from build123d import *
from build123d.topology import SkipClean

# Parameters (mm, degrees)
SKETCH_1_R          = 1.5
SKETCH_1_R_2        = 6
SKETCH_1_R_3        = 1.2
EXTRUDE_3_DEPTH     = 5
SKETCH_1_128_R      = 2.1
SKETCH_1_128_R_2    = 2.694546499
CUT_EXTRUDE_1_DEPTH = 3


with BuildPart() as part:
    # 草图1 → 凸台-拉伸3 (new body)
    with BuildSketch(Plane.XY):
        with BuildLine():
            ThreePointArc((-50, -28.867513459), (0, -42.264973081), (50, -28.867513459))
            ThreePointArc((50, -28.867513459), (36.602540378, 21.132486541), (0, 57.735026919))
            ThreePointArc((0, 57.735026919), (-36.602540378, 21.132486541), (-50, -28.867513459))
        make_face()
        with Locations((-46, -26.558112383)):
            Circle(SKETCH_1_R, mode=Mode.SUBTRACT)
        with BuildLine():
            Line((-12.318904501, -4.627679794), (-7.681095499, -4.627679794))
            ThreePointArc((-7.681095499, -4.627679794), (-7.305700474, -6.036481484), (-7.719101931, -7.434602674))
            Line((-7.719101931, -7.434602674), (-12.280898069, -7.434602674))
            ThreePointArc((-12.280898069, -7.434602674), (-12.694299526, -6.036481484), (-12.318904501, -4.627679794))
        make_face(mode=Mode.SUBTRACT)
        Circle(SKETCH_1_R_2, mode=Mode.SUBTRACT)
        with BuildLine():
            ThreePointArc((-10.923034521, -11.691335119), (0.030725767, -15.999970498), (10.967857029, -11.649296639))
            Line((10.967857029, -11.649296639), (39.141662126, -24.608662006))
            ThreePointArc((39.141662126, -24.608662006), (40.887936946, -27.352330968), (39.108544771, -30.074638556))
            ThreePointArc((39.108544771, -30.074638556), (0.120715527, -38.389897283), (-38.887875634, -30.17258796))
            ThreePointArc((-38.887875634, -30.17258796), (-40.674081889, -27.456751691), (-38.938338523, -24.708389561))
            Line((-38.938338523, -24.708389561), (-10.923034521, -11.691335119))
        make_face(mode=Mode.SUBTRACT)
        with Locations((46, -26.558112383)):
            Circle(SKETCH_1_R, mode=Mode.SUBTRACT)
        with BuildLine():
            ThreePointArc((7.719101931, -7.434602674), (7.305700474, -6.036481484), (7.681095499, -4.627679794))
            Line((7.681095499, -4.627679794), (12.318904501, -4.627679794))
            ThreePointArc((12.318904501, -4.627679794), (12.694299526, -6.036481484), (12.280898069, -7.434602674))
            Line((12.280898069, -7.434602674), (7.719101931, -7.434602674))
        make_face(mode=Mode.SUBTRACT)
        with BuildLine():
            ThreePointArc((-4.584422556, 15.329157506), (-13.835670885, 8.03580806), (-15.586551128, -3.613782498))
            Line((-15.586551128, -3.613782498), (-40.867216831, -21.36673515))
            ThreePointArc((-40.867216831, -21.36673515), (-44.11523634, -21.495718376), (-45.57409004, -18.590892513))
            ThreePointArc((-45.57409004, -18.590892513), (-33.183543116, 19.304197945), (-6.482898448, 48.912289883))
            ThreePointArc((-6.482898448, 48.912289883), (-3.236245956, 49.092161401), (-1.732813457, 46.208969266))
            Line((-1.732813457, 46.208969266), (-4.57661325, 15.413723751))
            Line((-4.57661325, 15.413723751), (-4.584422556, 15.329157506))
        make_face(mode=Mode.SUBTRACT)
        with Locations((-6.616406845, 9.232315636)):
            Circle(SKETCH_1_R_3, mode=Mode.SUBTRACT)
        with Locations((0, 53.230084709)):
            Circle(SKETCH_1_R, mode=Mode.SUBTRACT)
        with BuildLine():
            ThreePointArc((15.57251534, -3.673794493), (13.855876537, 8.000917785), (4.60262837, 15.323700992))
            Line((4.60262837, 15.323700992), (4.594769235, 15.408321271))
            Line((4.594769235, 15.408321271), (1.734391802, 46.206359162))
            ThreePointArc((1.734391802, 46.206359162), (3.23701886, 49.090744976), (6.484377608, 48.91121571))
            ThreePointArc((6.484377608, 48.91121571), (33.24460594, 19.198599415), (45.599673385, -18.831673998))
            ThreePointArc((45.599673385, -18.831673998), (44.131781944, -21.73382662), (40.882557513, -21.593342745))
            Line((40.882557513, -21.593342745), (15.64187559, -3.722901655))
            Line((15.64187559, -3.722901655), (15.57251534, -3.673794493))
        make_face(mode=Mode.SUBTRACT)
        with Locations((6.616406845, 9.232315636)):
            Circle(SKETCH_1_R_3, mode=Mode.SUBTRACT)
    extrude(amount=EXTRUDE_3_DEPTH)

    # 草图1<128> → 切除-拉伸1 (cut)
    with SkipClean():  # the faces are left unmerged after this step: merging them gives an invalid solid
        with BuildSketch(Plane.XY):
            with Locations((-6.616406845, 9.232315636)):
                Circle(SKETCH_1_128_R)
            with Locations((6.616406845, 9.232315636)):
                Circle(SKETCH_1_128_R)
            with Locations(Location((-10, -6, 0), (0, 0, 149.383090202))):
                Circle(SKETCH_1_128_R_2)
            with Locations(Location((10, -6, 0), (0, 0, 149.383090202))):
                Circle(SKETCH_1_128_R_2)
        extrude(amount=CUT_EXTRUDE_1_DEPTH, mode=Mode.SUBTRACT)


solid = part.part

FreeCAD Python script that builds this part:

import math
import FreeCAD as App
import Part
import Sketcher
from FreeCAD import Vector

doc = App.newDocument("Part")
params = doc.addObject("Spreadsheet::Sheet", "Params")
for row, (alias, value) in enumerate([
    ("sketch1_diameter", "3 mm"),
    ("sketch1_diameter2", "12 mm"),
    ("sketch1_radius", "100 mm"),
    ("sketch1_radius2", "16 mm"),
    ("sketch1_radius3", "3 mm"),
    ("pad1_length", "5 mm"),
    ("sketch2_diameter", "4.2 mm"),
    ("pocket1_length", "3 mm"),
], start=1):
    params.set(f"A{row}", alias)
    params.set(f"B{row}", "=" + value)
    params.setAlias(f"B{row}", alias)

body = doc.addObject("PartDesign::Body", "Body")

sketch1 = body.newObject("Sketcher::SketchObject", "Sketch")
sketch1.AttachmentSupport = (doc.getObject("XY_Plane"), [""])
sketch1.MapMode = "FlatFace"
sketch1.addGeometry([
    Part.ArcOfCircle(Part.Circle(Vector(0, 57.74, 0), Vector(0, 0, 1), 100), math.radians(-120), math.radians(-60)),
    Part.ArcOfCircle(Part.Circle(Vector(-50, -28.87, 0), Vector(0, 0, 1), 100), math.radians(0), math.radians(60)),
    Part.ArcOfCircle(Part.Circle(Vector(50, -28.87, 0), Vector(0, 0, 1), 100), math.radians(120), math.radians(180)),
    Part.Circle(Vector(-46, -26.56, 0), Vector(0, 0, 1), 1.5),
    Part.ArcOfCircle(Part.Circle(Vector(-10, -6, 0), Vector(0, 0, 1), 2.69), math.radians(149), math.radians(212)),
    Part.LineSegment(Vector(-12.32, -4.63, 0), Vector(-7.68, -4.63, 0)),
    Part.ArcOfCircle(Part.Circle(Vector(-10, -6, 0), Vector(0, 0, 1), 2.69), math.radians(-32), math.radians(31)),
    Part.LineSegment(Vector(-7.72, -7.43, 0), Vector(-12.28, -7.43, 0)),
    Part.LineSegment(Vector(-38.94, -24.71, 0), Vector(-10.92, -11.69, 0)),
    Part.ArcOfCircle(Part.Circle(Vector(0, 0, 0), Vector(0, 0, 1), 16), math.radians(-133), math.radians(-47)),
    Part.LineSegment(Vector(10.97, -11.65, 0), Vector(39.14, -24.61, 0)),
    Part.ArcOfCircle(Part.Circle(Vector(37.89, -27.33, 0), Vector(0, 0, 1), 3), math.radians(-66), math.radians(65)),
    Part.ArcOfCircle(Part.Circle(Vector(0, 57.74, 0), Vector(0, 0, 1), 96.12), math.radians(-114), math.radians(-66)),
    Part.ArcOfCircle(Part.Circle(Vector(-37.67, -27.43, 0), Vector(0, 0, 1), 3), math.radians(115), math.radians(246)),
    Part.Circle(Vector(46, -26.56, 0), Vector(0, 0, 1), 1.5),
    Part.LineSegment(Vector(12.28, -7.43, 0), Vector(7.72, -7.43, 0)),
    Part.ArcOfCircle(Part.Circle(Vector(10, -6, 0), Vector(0, 0, 1), 2.69), math.radians(149), math.radians(212)),
    Part.LineSegment(Vector(7.68, -4.63, 0), Vector(12.32, -4.63, 0)),
    Part.ArcOfCircle(Part.Circle(Vector(10, -6, 0), Vector(0, 0, 1), 2.69), math.radians(-32), math.radians(31)),
    Part.Circle(Vector(0, 0, 0), Vector(0, 0, 1), 6),
    Part.LineSegment(Vector(-4.58, 15.41, 0), Vector(-4.58, 15.33, 0)),
    Part.ArcOfCircle(Part.Circle(Vector(0, 0, 0), Vector(0, 0, 1), 16), math.radians(107), math.radians(193)),
    Part.LineSegment(Vector(-15.59, -3.61, 0), Vector(-40.87, -21.37, 0)),
    Part.ArcOfCircle(Part.Circle(Vector(-42.59, -18.91, 0), Vector(0, 0, 1), 3), math.radians(174), math.radians(305)),
    Part.ArcOfCircle(Part.Circle(Vector(50, -28.87, 0), Vector(0, 0, 1), 96.13), math.radians(126), math.radians(174)),
    Part.ArcOfCircle(Part.Circle(Vector(-4.72, 46.48, 0), Vector(0, 0, 1), 3), math.radians(-5), math.radians(126)),
    Part.LineSegment(Vector(-1.73, 46.21, 0), Vector(-4.58, 15.41, 0)),
    Part.Circle(Vector(-6.62, 9.23, 0), Vector(0, 0, 1), 1.2),
    Part.Circle(Vector(6.62, 9.23, 0), Vector(0, 0, 1), 1.2),
    Part.LineSegment(Vector(15.64, -3.72, 0), Vector(15.57, -3.67, 0)),
    Part.ArcOfCircle(Part.Circle(Vector(0, 0, 0), Vector(0, 0, 1), 16), math.radians(-13), math.radians(73)),
    Part.LineSegment(Vector(4.6, 15.32, 0), Vector(4.59, 15.41, 0)),
    Part.LineSegment(Vector(4.59, 15.41, 0), Vector(1.73, 46.21, 0)),
    Part.ArcOfCircle(Part.Circle(Vector(4.72, 46.48, 0), Vector(0, 0, 1), 3), math.radians(54), math.radians(185)),
    Part.ArcOfCircle(Part.Circle(Vector(-50, -28.87, 0), Vector(0, 0, 1), 96.13), math.radians(6), math.radians(54)),
    Part.ArcOfCircle(Part.Circle(Vector(42.62, -19.14, 0), Vector(0, 0, 1), 3), math.radians(-125), math.radians(6)),
    Part.LineSegment(Vector(40.88, -21.59, 0), Vector(15.64, -3.72, 0)),
    Part.Circle(Vector(0, 53.23, 0), Vector(0, 0, 1), 1.5),
], False)
sketch1.addConstraint([
    Sketcher.Constraint("Coincident", 0, 2, 1, 1),
    Sketcher.Constraint("Coincident", 1, 2, 2, 1),
    Sketcher.Constraint("Coincident", 2, 2, 0, 1),
    Sketcher.Constraint("Coincident", 4, 1, 5, 1),
    Sketcher.Constraint("Coincident", 5, 2, 6, 2),
    Sketcher.Constraint("Coincident", 6, 1, 7, 1),
    Sketcher.Constraint("Coincident", 7, 2, 4, 2),
    Sketcher.Constraint("Coincident", 8, 2, 9, 1),
    Sketcher.Constraint("Coincident", 9, 2, 10, 1),
    Sketcher.Constraint("Tangent", 10, 2, 11, 2),
    Sketcher.Constraint("Tangent", 11, 1, 12, 2),
    Sketcher.Constraint("Tangent", 12, 1, 13, 2),
    Sketcher.Constraint("Tangent", 13, 1, 8, 1),
    Sketcher.Constraint("Coincident", 15, 2, 16, 2),
    Sketcher.Constraint("Coincident", 16, 1, 17, 1),
    Sketcher.Constraint("Coincident", 17, 2, 18, 2),
    Sketcher.Constraint("Coincident", 18, 1, 15, 1),
    Sketcher.Constraint("Coincident", 20, 2, 21, 1),
    Sketcher.Constraint("Coincident", 21, 2, 22, 1),
    Sketcher.Constraint("Tangent", 22, 2, 23, 2),
    Sketcher.Constraint("Tangent", 23, 1, 24, 2),
    Sketcher.Constraint("Tangent", 24, 1, 25, 2),
    Sketcher.Constraint("Tangent", 25, 1, 26, 1),
    Sketcher.Constraint("Coincident", 26, 2, 20, 1),
    Sketcher.Constraint("Coincident", 29, 2, 30, 1),
    Sketcher.Constraint("Coincident", 30, 2, 31, 1),
    Sketcher.Constraint("Coincident", 31, 2, 32, 1),
    Sketcher.Constraint("Tangent", 32, 2, 33, 2),
    Sketcher.Constraint("Tangent", 33, 1, 34, 2),
    Sketcher.Constraint("Tangent", 34, 1, 35, 2),
    Sketcher.Constraint("Tangent", 35, 1, 36, 1),
    Sketcher.Constraint("Coincident", 36, 2, 29, 1),
    Sketcher.Constraint("Horizontal", 5),
    Sketcher.Constraint("Horizontal", 7),
    Sketcher.Constraint("Horizontal", 15),
    Sketcher.Constraint("Horizontal", 17),
    Sketcher.Constraint("Coincident", 9, 3, -1, 1),
    Sketcher.Constraint("Coincident", 19, 3, -1, 1),
    Sketcher.Constraint("Coincident", 21, 3, -1, 1),
    Sketcher.Constraint("Coincident", 30, 3, -1, 1),
    Sketcher.Constraint("Coincident", 6, 3, 4, 3),
    Sketcher.Constraint("Coincident", 12, 3, 0, 3),
    Sketcher.Constraint("Coincident", 18, 3, 16, 3),
    Sketcher.Constraint("Coincident", 24, 3, 2, 3),
    Sketcher.Constraint("Coincident", 34, 3, 1, 3),
    Sketcher.Constraint("Coincident", 0, 2, 2, 3),
    Sketcher.Constraint("Coincident", 1, 2, 0, 3),
    Sketcher.Constraint("Equal", 0, 1),
    Sketcher.Constraint("Equal", 4, 6),
    Sketcher.Constraint("Equal", 11, 13),
    Sketcher.Constraint("Equal", 3, 14),
    Sketcher.Constraint("Equal", 6, 16),
    Sketcher.Constraint("Equal", 16, 18),
    Sketcher.Constraint("Equal", 9, 21),
    Sketcher.Constraint("Equal", 13, 23),
    Sketcher.Constraint("Equal", 12, 24),
    Sketcher.Constraint("Equal", 23, 25),
    Sketcher.Constraint("Equal", 27, 28),
    Sketcher.Constraint("Equal", 21, 30),
    Sketcher.Constraint("Equal", 25, 33),
    Sketcher.Constraint("Equal", 24, 34),
    Sketcher.Constraint("Equal", 33, 35),
    Sketcher.Constraint("Equal", 14, 37),
    Sketcher.Constraint("Symmetric", 1, 3, 2, 3, -2),
    Sketcher.Constraint("Symmetric", 3, 3, 14, 3, -2),
    Sketcher.Constraint("Symmetric", 4, 3, 16, 3, -2),
    Sketcher.Constraint("Symmetric", 27, 3, 28, 3, -2),
    Sketcher.Constraint("PointOnObject", 37, 3, -2),
    Sketcher.Constraint("Parallel", 20, 26),
    Sketcher.Constraint("Parallel", 31, 32),
    Sketcher.Constraint("Parallel", 29, 36),
    Sketcher.Constraint("Horizontal", 7, 2, 15, 2),
    Sketcher.Constraint("Horizontal", 5, 2, 16, 1),
    Sketcher.Constraint("Equal", 29, 31),
    Sketcher.Constraint("Diameter", 3, 3.0),
    Sketcher.Constraint("Diameter", 19, 12.0),
    Sketcher.Constraint("Radius", 0, 100.0),
    Sketcher.Constraint("Radius", 9, 16.0),
    Sketcher.Constraint("Radius", 11, 3.0),
    Sketcher.Constraint("Diameter", 27, 2.4),
    Sketcher.Constraint("DistanceX", 3, 3, -1, 1, 46.0),
    Sketcher.Constraint("DistanceX", 4, 3, -1, 1, 10.0),
    Sketcher.Constraint("DistanceY", 4, 3, -1, 1, 6.0),
    Sketcher.Constraint("Radius", 12, 96.125),
    Sketcher.Constraint("Radius", 4, 2.694546),
    Sketcher.Constraint("DistanceX", 5, 1, 5, 2, 4.637809),
    Sketcher.Constraint("DistanceX", 6, 1, -1, 1, 7.719102),
    Sketcher.Constraint("DistanceX", 24, 1, -1, 1, 6.482898),
    Sketcher.Constraint("DistanceY", -1, 1, 30, 2, 15.323701),
    Sketcher.Constraint("DistanceY", 36, 2, -1, 1, 3.722902),
    Sketcher.Constraint("DistanceY", 1, 3, 3, 3, 2.309401),
    Sketcher.Constraint("Distance", 32, 30.930582),
    Sketcher.Constraint("Distance", 36, 30.92644),
    Sketcher.Constraint("DistanceX", 13, 3, -1, 1, 37.67421),
    Sketcher.Constraint("DistanceY", 23, 3, -1, 1, 18.911619),
    Sketcher.Constraint("DistanceY", -1, 1, 25, 3, 46.484832),
    Sketcher.Constraint("DistanceY", -1, 1, 33, 3, 46.483791),
    Sketcher.Constraint("DistanceY", 11, 1, -1, 1, 30.074639),
    Sketcher.Constraint("DistanceX", 13, 1, -1, 1, 38.938339),
    Sketcher.Constraint("DistanceX", 21, 2, -1, 1, 15.586551),
    Sketcher.Constraint("DistanceY", -1, 1, 25, 1, 46.208969),
    Sketcher.Constraint("DistanceX", 33, 3, 28, 3, 1.894871),
    Sketcher.Constraint("DistanceY", 27, 3, 37, 3, 43.997769),
    Sketcher.Constraint("DistanceX", 11, 3, 10, 2, 1.25367),
    Sketcher.Constraint("DistanceY", 27, 3, 20, 2, 6.096842),
    Sketcher.Constraint("DistanceX", 20, 2, 26, 2, 0.007809),
])
sketch1.setExpression("Constraints[74]", "Params.sketch1_diameter")
sketch1.setExpression("Constraints[75]", "Params.sketch1_diameter2")
sketch1.setExpression("Constraints[76]", "Params.sketch1_radius")
sketch1.setExpression("Constraints[77]", "Params.sketch1_radius2")
sketch1.setExpression("Constraints[78]", "Params.sketch1_radius3")
pad1 = body.newObject("PartDesign::Pad", "Pad")
pad1.Profile = sketch1
pad1.setExpression("Length", "Params.pad1_length")

sketch2 = body.newObject("Sketcher::SketchObject", "Sketch001")
sketch2.AttachmentSupport = (doc.getObject("XY_Plane"), [""])
sketch2.MapMode = "FlatFace"
sketch2.addGeometry([
    Part.Circle(Vector(-6.6, 9.2, 0), Vector(0, 0, 1), 2.1),
    Part.Circle(Vector(6.6, 9.2, 0), Vector(0, 0, 1), 2.1),
    Part.Circle(Vector(-10, -6, 0), Vector(0, 0, 1), 2.7),
    Part.Circle(Vector(10, -6, 0), Vector(0, 0, 1), 2.7),
], False)
sketch2.addConstraint([
    Sketcher.Constraint("Equal", 0, 1),
    Sketcher.Constraint("Equal", 2, 3),
    Sketcher.Constraint("Symmetric", 0, 3, 1, 3, -2),
    Sketcher.Constraint("Symmetric", 2, 3, 3, 3, -2),
    Sketcher.Constraint("Diameter", 0, 4.2),
    Sketcher.Constraint("DistanceX", 2, 3, -1, 1, 10.0),
    Sketcher.Constraint("DistanceY", 2, 3, -1, 1, 6.0),
    Sketcher.Constraint("Diameter", 2, 5.389093),
    Sketcher.Constraint("DistanceX", 0, 3, -1, 1, 6.616407),
    Sketcher.Constraint("DistanceY", -1, 1, 0, 3, 9.232316),
])
sketch2.setExpression("Constraints[4]", "Params.sketch2_diameter")
pocket1 = body.newObject("PartDesign::Pocket", "Pocket")
pocket1.Profile = sketch2
pocket1.setExpression("Length", "Params.pocket1_length")
pocket1.Reversed = True

doc.recompute()
